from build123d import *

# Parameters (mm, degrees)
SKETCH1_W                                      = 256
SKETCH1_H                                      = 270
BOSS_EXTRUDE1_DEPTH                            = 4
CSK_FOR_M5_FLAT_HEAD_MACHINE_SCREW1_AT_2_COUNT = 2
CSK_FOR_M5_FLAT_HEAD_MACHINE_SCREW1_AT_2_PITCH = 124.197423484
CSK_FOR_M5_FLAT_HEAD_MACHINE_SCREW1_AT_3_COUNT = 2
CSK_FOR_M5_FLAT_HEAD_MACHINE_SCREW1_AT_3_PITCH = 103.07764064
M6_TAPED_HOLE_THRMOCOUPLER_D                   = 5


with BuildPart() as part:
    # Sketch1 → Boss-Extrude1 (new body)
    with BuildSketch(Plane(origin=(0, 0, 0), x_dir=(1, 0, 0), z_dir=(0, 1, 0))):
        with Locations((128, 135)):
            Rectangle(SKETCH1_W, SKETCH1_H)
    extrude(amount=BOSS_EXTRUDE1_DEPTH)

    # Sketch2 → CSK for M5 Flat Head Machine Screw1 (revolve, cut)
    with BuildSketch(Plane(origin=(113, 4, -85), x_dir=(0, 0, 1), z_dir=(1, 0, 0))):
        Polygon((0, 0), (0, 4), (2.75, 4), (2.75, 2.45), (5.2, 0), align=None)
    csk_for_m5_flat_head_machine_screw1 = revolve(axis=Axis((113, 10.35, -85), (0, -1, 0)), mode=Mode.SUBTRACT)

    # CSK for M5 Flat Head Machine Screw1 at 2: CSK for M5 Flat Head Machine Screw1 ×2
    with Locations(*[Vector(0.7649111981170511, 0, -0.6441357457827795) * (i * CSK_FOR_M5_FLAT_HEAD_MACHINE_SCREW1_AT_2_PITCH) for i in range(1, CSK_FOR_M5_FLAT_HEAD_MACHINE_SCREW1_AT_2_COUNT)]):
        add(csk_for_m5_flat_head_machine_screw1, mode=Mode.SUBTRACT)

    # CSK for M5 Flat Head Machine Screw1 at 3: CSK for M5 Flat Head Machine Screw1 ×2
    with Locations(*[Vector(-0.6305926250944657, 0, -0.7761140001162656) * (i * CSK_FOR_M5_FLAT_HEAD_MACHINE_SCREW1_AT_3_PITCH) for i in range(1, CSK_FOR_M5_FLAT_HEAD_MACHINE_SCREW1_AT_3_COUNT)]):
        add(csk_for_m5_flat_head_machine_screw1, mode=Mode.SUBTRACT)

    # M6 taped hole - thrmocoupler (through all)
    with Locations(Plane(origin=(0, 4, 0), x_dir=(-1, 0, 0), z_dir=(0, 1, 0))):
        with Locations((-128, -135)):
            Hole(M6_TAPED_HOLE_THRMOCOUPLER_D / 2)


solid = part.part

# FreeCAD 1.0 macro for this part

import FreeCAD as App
import Part
import Sketcher
from FreeCAD import Vector
Q = App.Units.Quantity


def add_polygon(sketch, points):
    """Adds a closed chain of lines whose ends are joined by coincident constraints."""
    first, n = sketch.GeometryCount, len(points)
    for a, b in zip(points, points[1:] + points[:1]):
        sketch.addGeometry(Part.LineSegment(App.Vector(*a, 0), App.Vector(*b, 0)), False)
    for i in range(n):
        sketch.addConstraint(Sketcher.Constraint("Coincident", first + i, 2, first + (i + 1) % n, 1))

doc = App.newDocument("Part")
body = doc.addObject("PartDesign::Body", "Body")

# Sketch on XZ plane
sketch1 = body.newObject("Sketcher::SketchObject", "Sketch")
sketch1.AttachmentSupport = (doc.getObject("XZ_Plane"), [""])
sketch1.MapMode = "FlatFace"
add_polygon(sketch1, [(0, -270), (0, 0), (256, 0), (256, -270)])  # lines 0-3
sketch1.addConstraint(Sketcher.Constraint("Vertical", 0))
sketch1.addConstraint(Sketcher.Constraint("Horizontal", 1))
sketch1.addConstraint(Sketcher.Constraint("Vertical", 2))
sketch1.addConstraint(Sketcher.Constraint("Horizontal", 3))
sketch1.addConstraint(Sketcher.Constraint("Coincident", 0, 2, -1, 1))
sketch1.addConstraint(Sketcher.Constraint("DistanceX", 1, 1, 1, 2, 256.0))
sketch1.addConstraint(Sketcher.Constraint("DistanceY", 0, 1, 0, 2, 270.0))
pad1 = body.newObject("PartDesign::Pad", "Pad")
pad1.Profile = sketch1
pad1.Length = 4
pad1.Reversed = True

# Sketch on YZ plane
sketch2 = body.newObject("Sketcher::SketchObject", "Sketch001")
sketch2.AttachmentSupport = (doc.getObject("YZ_Plane"), [""])
sketch2.MapMode = "FlatFace"
sketch2.AttachmentOffset = App.Placement(Vector(0, 0, 113), App.Rotation())
add_polygon(sketch2, [(0, -85), (4, -85), (4, -79.8), (1.55, -82.25), (0, -82.25)])  # lines 0-4
sketch2.addGeometry(Part.LineSegment(Vector(4, -85, 0), Vector(0, -85, 0)), True)  # axis
sketch2.addConstraint(Sketcher.Constraint("Horizontal", 0))
sketch2.addConstraint(Sketcher.Constraint("Vertical", 1))
sketch2.addConstraint(Sketcher.Constraint("Horizontal", 3))
sketch2.addConstraint(Sketcher.Constraint("Vertical", 4))
sketch2.addConstraint(Sketcher.Constraint("Horizontal", 5))
sketch2.addConstraint(Sketcher.Constraint("Coincident", 5, 1, 0, 2))
sketch2.addConstraint(Sketcher.Constraint("PointOnObject", 3, 2, -2))
sketch2.addConstraint(Sketcher.Constraint("PointOnObject", 5, 2, -2))
sketch2.addConstraint(Sketcher.Constraint("DistanceX", 0, 1, 0, 2, 4.0))
sketch2.addConstraint(Sketcher.Constraint("Angle", 2, Q("-135 deg")))
sketch2.addConstraint(Sketcher.Constraint("DistanceY", 1, 1, 1, 2, 5.2))
sketch2.addConstraint(Sketcher.Constraint("DistanceY", 0, 2, -1, 1, 85.0))
sketch2.addConstraint(Sketcher.Constraint("DistanceX", 3, 2, 3, 1, 1.55))
groove = body.newObject("PartDesign::Groove", "Groove")
groove.Profile = sketch2
groove.ReferenceAxis = (sketch2, ["Axis0"])
groove.Angle = 360
doc.recompute()

datumline = body.newObject("PartDesign::Line", "DatumLine")
datumline.Placement = App.Placement(Vector(0, 0, 0), App.Rotation(Vector(0, 0, 1), Vector(0.764911198, 0, -0.644135746)))
linearpattern = body.newObject("PartDesign::LinearPattern", "LinearPattern")
linearpattern.Originals = [groove]
linearpattern.Direction = (datumline, [""])
linearpattern.Mode = "offset"
linearpattern.Offset = 124.197423
linearpattern.Occurrences = 2
body.Tip = linearpattern
doc.recompute()

datumline2 = body.newObject("PartDesign::Line", "DatumLine001")
datumline2.Placement = App.Placement(Vector(0, 0, 0), App.Rotation(Vector(0, 0, 1), Vector(-0.630592625, 0, -0.776114)))
linearpattern2 = body.newObject("PartDesign::LinearPattern", "LinearPattern001")
linearpattern2.Originals = [groove]
linearpattern2.Direction = (datumline2, [""])
linearpattern2.Mode = "offset"
linearpattern2.Offset = 103.077641
linearpattern2.Occurrences = 2
body.Tip = linearpattern2

# Sketch on XZ plane
sketch3 = body.newObject("Sketcher::SketchObject", "Sketch002")
sketch3.AttachmentSupport = (doc.getObject("XZ_Plane"), [""])
sketch3.MapMode = "FlatFace"
sketch3.AttachmentOffset = App.Placement(Vector(0, 0, -4), App.Rotation())
sketch3.addGeometry(Part.Circle(Vector(128, -135, 0), Vector(0, 0, 1), 2.5), False)
sketch3.addConstraint(Sketcher.Constraint("Diameter", 0, 5.0))
sketch3.addConstraint(Sketcher.Constraint("DistanceX", -1, 1, 0, 3, 128.0))
sketch3.addConstraint(Sketcher.Constraint("DistanceY", 0, 3, -1, 1, 135.0))
doc.recompute()
hole = body.newObject("PartDesign::Hole", "Hole")
hole.Profile = sketch3
hole.ThreadType = "None"
hole.Diameter = 5
hole.DepthType = "ThroughAll"
hole.Reversed = True

doc.recompute()
